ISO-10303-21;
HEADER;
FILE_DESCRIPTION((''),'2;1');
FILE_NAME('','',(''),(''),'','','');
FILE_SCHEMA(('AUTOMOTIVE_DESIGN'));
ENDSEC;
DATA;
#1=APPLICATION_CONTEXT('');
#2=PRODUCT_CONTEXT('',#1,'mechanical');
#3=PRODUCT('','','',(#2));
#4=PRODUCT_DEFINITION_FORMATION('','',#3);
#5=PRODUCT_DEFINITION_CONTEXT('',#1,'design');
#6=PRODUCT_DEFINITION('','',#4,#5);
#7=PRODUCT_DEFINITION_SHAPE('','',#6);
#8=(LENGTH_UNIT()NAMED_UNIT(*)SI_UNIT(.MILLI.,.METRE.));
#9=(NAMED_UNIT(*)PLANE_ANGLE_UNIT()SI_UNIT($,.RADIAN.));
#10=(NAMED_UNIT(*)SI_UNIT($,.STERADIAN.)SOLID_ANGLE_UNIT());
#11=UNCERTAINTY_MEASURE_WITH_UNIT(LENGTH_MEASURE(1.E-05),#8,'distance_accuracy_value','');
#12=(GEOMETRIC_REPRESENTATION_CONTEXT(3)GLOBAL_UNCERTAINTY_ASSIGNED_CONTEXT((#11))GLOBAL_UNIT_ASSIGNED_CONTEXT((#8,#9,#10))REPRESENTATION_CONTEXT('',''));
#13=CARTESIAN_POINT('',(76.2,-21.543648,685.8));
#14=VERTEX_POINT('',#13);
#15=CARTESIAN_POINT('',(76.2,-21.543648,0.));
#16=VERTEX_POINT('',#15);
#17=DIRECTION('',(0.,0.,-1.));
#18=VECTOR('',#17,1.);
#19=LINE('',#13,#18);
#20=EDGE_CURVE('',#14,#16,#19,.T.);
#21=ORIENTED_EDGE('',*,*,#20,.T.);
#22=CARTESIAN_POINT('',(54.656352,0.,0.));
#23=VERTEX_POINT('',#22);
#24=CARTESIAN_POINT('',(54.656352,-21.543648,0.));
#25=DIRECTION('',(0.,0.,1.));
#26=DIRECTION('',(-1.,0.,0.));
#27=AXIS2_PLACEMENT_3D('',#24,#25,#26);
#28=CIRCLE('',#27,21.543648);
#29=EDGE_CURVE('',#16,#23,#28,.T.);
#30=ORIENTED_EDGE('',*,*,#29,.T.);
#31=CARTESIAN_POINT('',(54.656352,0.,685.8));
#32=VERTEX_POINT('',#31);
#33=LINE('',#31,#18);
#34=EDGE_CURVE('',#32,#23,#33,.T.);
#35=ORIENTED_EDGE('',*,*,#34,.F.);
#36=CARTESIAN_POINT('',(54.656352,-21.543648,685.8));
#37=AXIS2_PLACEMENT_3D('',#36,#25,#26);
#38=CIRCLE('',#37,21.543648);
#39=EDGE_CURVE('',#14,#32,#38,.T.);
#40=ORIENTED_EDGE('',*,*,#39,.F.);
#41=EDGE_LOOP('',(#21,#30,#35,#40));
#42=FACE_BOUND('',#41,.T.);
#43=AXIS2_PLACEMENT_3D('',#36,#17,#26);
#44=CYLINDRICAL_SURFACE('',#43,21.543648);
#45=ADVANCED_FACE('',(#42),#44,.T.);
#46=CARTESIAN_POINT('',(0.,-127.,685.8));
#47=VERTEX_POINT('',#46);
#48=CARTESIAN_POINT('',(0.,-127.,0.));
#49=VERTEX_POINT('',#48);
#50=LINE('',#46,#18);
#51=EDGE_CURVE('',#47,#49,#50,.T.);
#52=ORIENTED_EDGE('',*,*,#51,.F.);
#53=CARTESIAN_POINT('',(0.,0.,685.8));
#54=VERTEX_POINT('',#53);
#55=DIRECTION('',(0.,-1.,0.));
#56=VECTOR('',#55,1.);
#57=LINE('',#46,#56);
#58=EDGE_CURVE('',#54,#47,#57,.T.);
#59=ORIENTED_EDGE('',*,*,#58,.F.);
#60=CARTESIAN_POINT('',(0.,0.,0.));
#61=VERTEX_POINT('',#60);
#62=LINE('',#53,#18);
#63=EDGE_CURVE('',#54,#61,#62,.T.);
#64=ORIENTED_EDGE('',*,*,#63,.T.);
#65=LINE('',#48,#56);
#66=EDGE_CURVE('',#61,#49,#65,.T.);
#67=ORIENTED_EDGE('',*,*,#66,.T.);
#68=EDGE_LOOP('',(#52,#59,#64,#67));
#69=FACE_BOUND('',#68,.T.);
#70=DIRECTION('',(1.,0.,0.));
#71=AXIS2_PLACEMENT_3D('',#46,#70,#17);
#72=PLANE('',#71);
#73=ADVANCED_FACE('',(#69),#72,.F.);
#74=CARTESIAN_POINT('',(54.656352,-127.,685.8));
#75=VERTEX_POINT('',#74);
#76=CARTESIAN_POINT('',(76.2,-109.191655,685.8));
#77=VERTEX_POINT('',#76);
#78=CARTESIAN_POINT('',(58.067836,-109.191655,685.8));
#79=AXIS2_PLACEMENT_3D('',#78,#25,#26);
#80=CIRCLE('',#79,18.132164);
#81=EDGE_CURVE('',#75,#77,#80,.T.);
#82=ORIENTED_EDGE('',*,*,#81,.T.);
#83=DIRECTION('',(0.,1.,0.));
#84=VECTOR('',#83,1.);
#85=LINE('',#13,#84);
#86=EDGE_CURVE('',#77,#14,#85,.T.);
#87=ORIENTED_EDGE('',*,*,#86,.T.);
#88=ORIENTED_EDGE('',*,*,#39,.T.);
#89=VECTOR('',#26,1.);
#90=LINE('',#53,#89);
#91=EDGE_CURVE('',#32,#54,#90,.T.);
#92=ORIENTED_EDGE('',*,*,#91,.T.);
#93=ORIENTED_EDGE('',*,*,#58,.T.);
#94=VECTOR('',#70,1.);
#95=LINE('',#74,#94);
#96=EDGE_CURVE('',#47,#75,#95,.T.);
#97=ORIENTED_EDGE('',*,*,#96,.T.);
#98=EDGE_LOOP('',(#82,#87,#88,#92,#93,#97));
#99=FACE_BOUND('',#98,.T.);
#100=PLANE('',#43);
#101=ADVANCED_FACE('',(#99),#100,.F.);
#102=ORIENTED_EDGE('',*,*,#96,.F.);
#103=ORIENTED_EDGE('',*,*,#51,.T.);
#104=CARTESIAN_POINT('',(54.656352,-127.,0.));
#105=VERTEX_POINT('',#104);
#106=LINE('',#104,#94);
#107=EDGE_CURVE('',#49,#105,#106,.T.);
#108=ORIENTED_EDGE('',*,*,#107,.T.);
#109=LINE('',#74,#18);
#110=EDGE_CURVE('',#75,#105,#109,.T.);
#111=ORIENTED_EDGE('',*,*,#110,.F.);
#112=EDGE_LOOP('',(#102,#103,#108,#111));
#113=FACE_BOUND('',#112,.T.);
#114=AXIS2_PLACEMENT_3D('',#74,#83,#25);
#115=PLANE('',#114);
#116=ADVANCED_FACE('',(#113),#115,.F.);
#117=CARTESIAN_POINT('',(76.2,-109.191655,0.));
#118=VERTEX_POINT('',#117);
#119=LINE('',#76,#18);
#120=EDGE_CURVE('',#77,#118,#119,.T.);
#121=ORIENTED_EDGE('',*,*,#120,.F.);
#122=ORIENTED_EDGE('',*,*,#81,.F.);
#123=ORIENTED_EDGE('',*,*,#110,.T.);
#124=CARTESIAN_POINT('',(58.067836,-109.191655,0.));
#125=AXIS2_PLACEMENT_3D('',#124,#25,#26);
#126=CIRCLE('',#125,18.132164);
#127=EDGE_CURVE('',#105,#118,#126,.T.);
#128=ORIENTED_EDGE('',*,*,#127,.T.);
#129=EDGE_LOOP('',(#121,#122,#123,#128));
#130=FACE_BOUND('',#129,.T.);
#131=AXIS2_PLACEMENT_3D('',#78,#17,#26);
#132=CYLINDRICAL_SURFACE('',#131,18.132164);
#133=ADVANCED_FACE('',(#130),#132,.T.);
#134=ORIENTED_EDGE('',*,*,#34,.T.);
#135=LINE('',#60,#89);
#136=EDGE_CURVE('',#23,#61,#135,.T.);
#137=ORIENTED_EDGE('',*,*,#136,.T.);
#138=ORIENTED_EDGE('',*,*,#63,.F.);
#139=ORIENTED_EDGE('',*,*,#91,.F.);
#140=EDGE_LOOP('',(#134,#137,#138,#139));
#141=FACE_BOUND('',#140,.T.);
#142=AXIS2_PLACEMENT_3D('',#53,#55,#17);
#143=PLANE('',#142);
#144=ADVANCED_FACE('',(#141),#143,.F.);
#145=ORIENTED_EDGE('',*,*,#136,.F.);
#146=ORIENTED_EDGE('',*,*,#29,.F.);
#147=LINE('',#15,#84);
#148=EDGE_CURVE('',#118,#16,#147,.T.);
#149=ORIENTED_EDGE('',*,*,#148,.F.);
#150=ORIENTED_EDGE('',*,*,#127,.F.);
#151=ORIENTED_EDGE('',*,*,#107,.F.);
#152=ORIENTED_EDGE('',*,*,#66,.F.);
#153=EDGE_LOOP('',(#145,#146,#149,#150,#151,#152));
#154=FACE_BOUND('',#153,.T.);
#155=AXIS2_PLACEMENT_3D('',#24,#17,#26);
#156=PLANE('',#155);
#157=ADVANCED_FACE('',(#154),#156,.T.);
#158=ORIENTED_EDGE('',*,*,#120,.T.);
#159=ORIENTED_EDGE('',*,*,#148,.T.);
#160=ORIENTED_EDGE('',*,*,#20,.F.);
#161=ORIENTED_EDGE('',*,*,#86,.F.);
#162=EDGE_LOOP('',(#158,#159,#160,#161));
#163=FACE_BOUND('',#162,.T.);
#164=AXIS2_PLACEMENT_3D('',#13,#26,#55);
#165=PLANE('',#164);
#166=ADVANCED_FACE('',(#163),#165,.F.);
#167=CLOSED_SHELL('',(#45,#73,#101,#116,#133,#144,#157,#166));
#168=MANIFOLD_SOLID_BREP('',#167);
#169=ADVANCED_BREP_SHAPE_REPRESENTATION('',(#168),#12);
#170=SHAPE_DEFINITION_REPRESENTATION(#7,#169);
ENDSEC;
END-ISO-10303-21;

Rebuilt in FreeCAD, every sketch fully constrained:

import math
import FreeCAD as App
import Part
import Sketcher
from FreeCAD import Vector
Q = App.Units.Quantity

doc = App.newDocument("Part")
body = doc.addObject("PartDesign::Body", "Body")

# Sketch on XY plane
sketch1 = body.newObject("Sketcher::SketchObject", "Sketch")
sketch1.AttachmentSupport = (doc.getObject("XY_Plane"), [""])
sketch1.MapMode = "FlatFace"
sketch1.addGeometry([
    Part.LineSegment(Vector(54.656352, 0, 0), Vector(0, 0, 0)),  # 0
    Part.LineSegment(Vector(0, 0, 0), Vector(0, -127, 0)),  # 1
    Part.LineSegment(Vector(0, -127, 0), Vector(54.656352, -127, 0)),  # 2
    Part.ArcOfCircle(Part.Circle(Vector(58.067836, -109.191655, 0), Vector(0, 0, 1), 18.132164), math.radians(-100.844572), math.radians(0)),  # 3
    Part.LineSegment(Vector(76.2, -109.191655, 0), Vector(76.2, -21.543648, 0)),  # 4
    Part.ArcOfCircle(Part.Circle(Vector(54.656352, -21.543648, 0), Vector(0, 0, 1), 21.543648), math.radians(0), math.radians(90)),  # 5
], False)
sketch1.addConstraint([
    Sketcher.Constraint("Coincident", 0, 2, 1, 1),
    Sketcher.Constraint("Coincident", 1, 2, 2, 1),
    Sketcher.Constraint("Coincident", 2, 2, 3, 1),
    Sketcher.Constraint("Tangent", 3, 2, 4, 1),
    Sketcher.Constraint("Tangent", 4, 2, 5, 1),
    Sketcher.Constraint("Tangent", 5, 2, 0, 1),
    Sketcher.Constraint("Horizontal", 0),
    Sketcher.Constraint("Vertical", 1),
    Sketcher.Constraint("Horizontal", 2),
    Sketcher.Constraint("Vertical", 4),
    Sketcher.Constraint("Coincident", 0, 2, -1, 1),
    Sketcher.Constraint("Vertical", 5, 3, 2, 2),
    Sketcher.Constraint("DistanceY", 1, 2, 1, 1, Q("5 in")),
    Sketcher.Constraint("DistanceX", -1, 1, 3, 2, Q("3 in")),
    Sketcher.Constraint("Radius", 3, 18.132164),
    Sketcher.Constraint("Radius", 5, 21.543648),
])
pad1 = body.newObject("PartDesign::Pad", "Pad")
pad1.Profile = sketch1
pad1.Length = Q("27 in")

doc.recompute()
